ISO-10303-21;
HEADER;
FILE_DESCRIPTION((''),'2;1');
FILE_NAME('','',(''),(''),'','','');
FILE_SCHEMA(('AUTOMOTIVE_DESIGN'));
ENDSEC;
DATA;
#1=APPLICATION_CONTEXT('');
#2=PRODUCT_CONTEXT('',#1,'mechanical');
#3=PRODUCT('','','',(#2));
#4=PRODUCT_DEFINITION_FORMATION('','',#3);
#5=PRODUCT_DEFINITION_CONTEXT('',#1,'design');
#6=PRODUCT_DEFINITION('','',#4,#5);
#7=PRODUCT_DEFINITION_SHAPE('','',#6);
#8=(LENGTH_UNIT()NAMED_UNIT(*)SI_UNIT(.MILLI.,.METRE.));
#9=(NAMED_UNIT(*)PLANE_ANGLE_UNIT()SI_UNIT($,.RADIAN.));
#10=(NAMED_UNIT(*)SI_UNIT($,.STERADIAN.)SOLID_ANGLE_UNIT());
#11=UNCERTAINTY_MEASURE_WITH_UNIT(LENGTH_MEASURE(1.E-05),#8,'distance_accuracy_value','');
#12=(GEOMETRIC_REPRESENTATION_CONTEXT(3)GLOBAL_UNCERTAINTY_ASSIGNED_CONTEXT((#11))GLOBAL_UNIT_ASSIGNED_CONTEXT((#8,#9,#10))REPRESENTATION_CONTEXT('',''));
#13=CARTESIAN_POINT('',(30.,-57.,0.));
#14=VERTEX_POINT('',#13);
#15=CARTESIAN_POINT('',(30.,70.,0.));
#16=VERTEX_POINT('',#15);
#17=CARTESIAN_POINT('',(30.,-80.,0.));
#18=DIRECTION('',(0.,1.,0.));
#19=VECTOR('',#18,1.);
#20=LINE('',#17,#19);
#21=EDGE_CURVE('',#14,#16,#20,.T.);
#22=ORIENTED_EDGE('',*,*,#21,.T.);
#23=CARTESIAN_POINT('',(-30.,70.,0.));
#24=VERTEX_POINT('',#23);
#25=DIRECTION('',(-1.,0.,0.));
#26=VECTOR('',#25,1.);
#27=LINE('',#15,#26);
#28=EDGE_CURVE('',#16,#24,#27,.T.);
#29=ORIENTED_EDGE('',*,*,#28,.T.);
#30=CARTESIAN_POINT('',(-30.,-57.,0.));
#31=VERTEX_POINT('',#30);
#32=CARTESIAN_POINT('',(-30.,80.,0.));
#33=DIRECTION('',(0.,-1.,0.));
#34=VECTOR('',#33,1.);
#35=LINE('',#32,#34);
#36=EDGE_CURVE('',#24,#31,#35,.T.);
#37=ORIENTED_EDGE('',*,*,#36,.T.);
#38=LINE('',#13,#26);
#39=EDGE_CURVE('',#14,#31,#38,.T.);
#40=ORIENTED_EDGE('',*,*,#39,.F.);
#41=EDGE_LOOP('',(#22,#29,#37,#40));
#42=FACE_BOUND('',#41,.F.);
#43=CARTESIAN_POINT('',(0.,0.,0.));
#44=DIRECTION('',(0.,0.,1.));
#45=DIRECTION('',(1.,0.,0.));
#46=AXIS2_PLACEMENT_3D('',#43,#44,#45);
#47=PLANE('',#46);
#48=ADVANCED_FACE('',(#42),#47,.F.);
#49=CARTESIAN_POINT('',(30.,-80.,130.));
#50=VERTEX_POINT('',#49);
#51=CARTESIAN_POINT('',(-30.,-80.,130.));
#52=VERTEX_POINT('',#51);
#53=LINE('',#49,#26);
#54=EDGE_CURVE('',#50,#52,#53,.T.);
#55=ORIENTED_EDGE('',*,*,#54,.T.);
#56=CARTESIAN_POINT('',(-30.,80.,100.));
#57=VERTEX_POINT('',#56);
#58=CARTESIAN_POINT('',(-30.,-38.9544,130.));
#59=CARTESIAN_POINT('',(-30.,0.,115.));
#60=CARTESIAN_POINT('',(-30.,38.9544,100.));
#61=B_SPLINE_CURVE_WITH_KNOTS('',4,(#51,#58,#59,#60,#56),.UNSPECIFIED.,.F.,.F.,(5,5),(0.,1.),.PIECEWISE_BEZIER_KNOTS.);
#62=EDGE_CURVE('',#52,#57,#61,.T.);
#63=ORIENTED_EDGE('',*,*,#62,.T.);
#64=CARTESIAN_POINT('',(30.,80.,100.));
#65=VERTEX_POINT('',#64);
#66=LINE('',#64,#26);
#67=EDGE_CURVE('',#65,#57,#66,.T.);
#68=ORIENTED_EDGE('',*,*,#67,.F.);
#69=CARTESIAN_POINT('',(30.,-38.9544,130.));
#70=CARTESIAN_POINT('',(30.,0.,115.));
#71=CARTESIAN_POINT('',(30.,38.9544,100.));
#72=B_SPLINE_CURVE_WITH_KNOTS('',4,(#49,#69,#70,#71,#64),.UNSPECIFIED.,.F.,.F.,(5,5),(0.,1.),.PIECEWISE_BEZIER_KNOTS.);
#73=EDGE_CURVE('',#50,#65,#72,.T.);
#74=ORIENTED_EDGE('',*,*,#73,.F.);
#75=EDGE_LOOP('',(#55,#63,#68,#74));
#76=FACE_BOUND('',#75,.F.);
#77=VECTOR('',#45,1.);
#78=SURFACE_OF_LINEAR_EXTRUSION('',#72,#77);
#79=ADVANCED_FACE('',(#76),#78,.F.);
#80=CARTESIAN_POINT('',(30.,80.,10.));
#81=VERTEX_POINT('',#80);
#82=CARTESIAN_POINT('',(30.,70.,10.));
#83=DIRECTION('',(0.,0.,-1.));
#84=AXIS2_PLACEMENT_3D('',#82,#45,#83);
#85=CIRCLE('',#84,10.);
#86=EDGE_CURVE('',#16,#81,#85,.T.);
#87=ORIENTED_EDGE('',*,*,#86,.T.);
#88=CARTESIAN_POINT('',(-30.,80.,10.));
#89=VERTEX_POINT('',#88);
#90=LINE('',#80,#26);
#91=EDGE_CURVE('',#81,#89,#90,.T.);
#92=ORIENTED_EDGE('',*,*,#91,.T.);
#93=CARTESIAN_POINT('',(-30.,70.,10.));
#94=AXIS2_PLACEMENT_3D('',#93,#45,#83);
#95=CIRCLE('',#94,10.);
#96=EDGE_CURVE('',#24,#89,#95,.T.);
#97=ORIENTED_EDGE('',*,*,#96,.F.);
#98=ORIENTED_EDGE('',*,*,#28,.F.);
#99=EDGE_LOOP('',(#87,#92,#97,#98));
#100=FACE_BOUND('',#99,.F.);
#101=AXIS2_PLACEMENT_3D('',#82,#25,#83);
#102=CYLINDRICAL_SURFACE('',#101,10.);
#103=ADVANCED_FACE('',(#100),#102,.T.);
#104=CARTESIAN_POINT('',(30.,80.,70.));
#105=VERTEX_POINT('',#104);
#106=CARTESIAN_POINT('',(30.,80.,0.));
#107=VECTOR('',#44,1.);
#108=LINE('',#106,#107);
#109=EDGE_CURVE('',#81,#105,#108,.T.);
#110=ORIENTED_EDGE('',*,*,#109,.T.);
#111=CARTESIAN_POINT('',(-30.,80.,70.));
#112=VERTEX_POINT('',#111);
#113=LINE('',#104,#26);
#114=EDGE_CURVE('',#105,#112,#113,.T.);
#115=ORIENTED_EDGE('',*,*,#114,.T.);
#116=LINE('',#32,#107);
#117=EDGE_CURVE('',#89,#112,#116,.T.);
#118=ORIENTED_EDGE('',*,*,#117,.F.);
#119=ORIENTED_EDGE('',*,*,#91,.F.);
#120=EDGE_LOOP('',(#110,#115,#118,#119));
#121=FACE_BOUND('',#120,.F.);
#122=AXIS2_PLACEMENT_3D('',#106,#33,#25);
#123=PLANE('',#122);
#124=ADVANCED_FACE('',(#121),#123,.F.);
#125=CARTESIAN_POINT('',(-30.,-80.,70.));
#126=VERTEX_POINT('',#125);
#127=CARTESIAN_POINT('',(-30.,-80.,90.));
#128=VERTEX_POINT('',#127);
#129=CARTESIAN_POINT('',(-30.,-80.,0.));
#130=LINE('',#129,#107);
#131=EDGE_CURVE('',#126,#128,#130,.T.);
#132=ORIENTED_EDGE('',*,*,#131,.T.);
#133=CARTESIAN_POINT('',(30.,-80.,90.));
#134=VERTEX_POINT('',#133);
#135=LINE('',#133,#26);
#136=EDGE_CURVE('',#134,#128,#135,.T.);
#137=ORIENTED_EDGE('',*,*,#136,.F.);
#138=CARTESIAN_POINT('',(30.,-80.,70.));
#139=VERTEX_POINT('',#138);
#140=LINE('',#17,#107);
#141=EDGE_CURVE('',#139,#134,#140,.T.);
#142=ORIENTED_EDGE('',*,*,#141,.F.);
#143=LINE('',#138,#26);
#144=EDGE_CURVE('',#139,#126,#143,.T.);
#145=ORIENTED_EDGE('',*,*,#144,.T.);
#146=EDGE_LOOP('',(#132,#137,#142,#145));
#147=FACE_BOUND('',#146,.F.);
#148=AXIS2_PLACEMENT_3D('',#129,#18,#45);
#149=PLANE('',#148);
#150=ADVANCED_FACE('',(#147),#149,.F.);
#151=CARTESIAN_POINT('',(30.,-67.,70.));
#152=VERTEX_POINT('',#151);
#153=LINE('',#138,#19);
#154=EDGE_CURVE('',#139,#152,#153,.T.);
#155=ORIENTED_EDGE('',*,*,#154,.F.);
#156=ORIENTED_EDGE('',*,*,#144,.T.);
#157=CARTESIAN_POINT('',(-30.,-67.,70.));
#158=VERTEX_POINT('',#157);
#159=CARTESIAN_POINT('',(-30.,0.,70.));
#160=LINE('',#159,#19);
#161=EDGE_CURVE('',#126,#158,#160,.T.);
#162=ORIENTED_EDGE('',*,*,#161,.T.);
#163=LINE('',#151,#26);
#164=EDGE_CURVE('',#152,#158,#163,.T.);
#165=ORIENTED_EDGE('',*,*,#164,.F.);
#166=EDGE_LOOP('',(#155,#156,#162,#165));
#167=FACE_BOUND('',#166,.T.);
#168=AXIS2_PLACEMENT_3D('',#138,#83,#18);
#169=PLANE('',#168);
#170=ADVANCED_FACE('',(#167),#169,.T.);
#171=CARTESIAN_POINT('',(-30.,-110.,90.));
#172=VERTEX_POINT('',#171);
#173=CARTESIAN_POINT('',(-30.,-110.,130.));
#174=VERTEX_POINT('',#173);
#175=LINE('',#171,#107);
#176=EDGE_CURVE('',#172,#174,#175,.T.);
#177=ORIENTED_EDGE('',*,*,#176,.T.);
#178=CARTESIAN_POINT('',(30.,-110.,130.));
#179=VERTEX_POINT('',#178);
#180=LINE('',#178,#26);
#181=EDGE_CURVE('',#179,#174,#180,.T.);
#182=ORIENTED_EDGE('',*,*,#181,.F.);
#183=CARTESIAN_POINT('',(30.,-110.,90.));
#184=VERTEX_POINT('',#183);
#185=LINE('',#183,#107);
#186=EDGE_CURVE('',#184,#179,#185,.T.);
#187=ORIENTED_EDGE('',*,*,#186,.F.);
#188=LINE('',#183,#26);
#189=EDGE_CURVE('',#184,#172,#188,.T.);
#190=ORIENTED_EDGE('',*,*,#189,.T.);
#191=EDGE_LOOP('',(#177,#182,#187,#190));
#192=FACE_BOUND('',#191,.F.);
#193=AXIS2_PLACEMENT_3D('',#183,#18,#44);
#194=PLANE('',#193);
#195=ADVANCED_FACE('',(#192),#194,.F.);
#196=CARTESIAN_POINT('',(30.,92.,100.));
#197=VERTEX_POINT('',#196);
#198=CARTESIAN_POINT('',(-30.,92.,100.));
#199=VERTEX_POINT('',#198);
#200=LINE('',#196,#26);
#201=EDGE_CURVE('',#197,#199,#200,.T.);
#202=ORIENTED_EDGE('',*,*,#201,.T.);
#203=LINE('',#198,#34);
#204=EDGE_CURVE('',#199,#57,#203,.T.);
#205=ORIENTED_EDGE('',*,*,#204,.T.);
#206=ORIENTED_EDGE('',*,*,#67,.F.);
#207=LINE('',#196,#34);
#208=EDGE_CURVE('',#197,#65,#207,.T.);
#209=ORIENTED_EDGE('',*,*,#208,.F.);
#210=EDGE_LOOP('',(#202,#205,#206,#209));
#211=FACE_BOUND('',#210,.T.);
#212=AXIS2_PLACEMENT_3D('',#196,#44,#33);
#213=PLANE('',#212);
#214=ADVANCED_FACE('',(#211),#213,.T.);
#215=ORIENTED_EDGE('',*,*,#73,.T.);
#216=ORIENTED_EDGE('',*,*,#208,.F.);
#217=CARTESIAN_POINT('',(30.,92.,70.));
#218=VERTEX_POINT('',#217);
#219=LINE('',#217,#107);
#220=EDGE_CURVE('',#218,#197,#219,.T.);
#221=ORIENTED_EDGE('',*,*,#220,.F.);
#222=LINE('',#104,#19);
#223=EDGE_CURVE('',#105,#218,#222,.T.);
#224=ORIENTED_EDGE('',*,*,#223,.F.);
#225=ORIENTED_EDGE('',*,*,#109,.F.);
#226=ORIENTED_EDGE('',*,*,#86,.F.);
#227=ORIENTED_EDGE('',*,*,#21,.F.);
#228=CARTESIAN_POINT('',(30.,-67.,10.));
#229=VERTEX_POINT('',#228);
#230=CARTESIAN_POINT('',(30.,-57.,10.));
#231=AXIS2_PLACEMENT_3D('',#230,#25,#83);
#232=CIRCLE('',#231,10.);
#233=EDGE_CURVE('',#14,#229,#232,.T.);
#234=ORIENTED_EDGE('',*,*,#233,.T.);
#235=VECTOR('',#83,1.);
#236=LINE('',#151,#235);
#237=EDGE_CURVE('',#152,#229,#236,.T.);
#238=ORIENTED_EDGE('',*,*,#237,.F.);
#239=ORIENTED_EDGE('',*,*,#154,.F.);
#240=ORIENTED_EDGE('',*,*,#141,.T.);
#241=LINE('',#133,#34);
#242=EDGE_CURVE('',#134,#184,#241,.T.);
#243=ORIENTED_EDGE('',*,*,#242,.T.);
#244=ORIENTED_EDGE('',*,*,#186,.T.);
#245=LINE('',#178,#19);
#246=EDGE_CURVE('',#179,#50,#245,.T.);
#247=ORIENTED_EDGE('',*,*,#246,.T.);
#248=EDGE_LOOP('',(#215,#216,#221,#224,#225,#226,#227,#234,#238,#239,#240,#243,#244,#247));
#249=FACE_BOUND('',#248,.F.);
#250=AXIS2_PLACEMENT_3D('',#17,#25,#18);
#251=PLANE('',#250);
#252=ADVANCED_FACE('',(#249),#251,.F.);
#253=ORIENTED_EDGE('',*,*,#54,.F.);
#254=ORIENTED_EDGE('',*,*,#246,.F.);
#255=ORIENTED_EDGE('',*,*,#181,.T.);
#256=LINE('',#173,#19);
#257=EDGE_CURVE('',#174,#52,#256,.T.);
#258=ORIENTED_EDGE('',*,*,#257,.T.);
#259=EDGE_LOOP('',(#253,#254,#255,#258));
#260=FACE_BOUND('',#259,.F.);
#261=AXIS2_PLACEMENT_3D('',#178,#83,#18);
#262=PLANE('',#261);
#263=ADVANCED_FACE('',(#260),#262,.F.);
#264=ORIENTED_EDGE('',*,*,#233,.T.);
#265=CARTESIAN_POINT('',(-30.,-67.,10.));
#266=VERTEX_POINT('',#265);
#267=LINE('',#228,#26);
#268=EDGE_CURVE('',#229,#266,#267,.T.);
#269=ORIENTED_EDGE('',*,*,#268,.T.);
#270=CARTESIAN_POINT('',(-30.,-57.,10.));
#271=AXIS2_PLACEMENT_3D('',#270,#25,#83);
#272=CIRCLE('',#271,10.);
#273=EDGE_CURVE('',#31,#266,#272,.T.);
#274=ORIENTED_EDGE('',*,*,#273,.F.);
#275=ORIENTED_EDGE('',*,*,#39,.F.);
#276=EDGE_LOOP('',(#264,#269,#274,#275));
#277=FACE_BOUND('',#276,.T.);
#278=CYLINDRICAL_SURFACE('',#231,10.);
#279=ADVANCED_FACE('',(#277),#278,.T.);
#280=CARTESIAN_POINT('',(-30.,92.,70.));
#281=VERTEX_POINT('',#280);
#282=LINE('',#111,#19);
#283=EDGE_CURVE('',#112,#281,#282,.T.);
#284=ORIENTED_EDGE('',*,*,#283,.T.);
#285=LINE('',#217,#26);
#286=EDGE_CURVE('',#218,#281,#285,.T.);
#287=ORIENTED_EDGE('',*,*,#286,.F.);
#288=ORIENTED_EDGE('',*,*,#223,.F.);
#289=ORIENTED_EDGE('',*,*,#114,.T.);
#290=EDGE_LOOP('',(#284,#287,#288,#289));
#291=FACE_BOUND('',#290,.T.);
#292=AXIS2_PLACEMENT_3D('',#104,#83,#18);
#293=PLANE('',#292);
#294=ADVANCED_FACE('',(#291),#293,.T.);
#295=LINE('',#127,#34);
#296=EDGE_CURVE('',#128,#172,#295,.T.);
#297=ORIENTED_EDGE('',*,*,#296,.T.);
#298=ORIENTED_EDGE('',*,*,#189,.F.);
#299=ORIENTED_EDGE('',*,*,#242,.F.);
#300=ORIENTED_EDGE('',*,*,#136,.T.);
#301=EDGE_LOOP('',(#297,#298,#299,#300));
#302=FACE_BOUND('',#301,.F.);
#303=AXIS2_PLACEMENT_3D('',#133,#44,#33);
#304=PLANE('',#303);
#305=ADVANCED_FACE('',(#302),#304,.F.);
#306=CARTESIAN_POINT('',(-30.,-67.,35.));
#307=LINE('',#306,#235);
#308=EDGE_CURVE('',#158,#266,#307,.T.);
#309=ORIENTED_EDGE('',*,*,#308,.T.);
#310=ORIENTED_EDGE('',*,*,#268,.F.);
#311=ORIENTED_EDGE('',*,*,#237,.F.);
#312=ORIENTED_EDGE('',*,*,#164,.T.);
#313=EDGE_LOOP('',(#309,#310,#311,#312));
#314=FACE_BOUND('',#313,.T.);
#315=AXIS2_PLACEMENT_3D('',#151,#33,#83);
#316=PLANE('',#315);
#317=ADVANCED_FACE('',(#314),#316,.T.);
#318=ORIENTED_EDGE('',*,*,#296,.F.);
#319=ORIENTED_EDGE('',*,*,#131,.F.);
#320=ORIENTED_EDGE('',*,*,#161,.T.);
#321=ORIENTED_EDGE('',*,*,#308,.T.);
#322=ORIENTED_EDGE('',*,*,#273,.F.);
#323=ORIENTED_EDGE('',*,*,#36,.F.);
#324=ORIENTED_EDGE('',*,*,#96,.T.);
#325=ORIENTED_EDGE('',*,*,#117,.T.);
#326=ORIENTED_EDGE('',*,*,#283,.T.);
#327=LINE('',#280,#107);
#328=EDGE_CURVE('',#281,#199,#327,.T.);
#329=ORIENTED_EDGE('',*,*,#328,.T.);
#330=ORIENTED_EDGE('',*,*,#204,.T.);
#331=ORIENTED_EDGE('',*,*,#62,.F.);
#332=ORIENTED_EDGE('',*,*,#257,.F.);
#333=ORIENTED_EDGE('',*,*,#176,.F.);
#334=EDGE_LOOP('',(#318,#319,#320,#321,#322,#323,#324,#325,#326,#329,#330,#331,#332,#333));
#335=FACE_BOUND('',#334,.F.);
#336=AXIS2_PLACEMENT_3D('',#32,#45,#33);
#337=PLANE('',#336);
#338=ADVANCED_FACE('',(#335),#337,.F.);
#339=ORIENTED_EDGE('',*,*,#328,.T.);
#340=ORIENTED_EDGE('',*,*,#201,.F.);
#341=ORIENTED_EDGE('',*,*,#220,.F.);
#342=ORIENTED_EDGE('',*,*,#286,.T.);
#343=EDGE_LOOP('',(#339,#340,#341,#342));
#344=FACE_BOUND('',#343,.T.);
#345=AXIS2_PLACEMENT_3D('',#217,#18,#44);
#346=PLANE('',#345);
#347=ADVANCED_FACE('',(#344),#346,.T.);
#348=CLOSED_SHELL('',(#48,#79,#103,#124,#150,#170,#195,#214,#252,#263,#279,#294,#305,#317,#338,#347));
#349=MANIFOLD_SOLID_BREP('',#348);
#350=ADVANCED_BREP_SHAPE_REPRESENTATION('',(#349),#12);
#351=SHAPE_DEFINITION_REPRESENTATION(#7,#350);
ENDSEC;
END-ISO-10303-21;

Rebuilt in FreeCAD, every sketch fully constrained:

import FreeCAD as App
import Part
import Sketcher
from FreeCAD import Vector
Q = App.Units.Quantity


def edges_at(feature, points):
    """Names of the edges that pass closest to the given points."""
    edges = feature.Shape.Edges
    near = lambda p: min(range(len(edges)), key=lambda i: edges[i].distToShape(Part.Vertex(*p))[0])
    return sorted({f"Edge{near(p) + 1}" for p in points})

doc = App.newDocument("Part")
body = doc.addObject("PartDesign::Body", "Body")

sketch1 = doc.addObject("Sketcher::SketchObject", "Sketch")
body.addObject(sketch1)
sketch1.AttachmentSupport = (doc.XY_Plane, [""])
sketch1.MapMode = "FlatFace"
sketch1.addGeometry(Part.LineSegment(Vector(-30, 80, 0), Vector(-30, -80, 0)), False)
sketch1.addGeometry(Part.LineSegment(Vector(-30, -80, 0), Vector(30, -80, 0)), False)
sketch1.addGeometry(Part.LineSegment(Vector(30, -80, 0), Vector(30, 80, 0)), False)
sketch1.addGeometry(Part.LineSegment(Vector(30, 80, 0), Vector(-30, 80, 0)), False)
sketch1.addConstraint(Sketcher.Constraint("Coincident", 0, 2, 1, 1))
sketch1.addConstraint(Sketcher.Constraint("Coincident", 1, 2, 2, 1))
sketch1.addConstraint(Sketcher.Constraint("Coincident", 2, 2, 3, 1))
sketch1.addConstraint(Sketcher.Constraint("Coincident", 3, 2, 0, 1))
sketch1.addConstraint(Sketcher.Constraint("Vertical", 0))
sketch1.addConstraint(Sketcher.Constraint("Horizontal", 1))
sketch1.addConstraint(Sketcher.Constraint("Vertical", 2))
sketch1.addConstraint(Sketcher.Constraint("Horizontal", 3))
sketch1.addConstraint(Sketcher.Constraint("Symmetric", 0, 2, 2, 2, -1, 1))
sketch1.addConstraint(Sketcher.Constraint("DistanceX", 1, 1, 1, 2, Q("60 mm")))
sketch1.addConstraint(Sketcher.Constraint("DistanceY", 0, 2, 0, 1, Q("160 mm")))
pad1 = doc.addObject("PartDesign::Pad", "Pad")
body.addObject(pad1)
pad1.Profile = sketch1
pad1.Length = 100

sketch2 = doc.addObject("Sketcher::SketchObject", "Sketch001")
body.addObject(sketch2)
sketch2.AttachmentSupport = (doc.YZ_Plane, [""])
sketch2.MapMode = "FlatFace"
sketch2.AttachmentOffset = App.Placement(Vector(0, 0, 30), App.Rotation())
sketch2.addGeometry(Part.LineSegment(Vector(-80, 100, 0), Vector(80, 100, 0)), False)
sketch2.addGeometry(Part.BSplineCurve([Vector(-80, 130, 0), Vector(-38.9544, 130, 0), Vector(0, 115, 0), Vector(38.9544, 100, 0), Vector(80, 100, 0)], [5, 5], [0, 1], False, 4, [1, 1, 1, 1, 1], False), False)
sketch2.addGeometry(Part.LineSegment(Vector(-80, 130, 0), Vector(-80, 100, 0)), False)
sketch2.addConstraint(Sketcher.Constraint("Block", 1))
sketch2.addConstraint(Sketcher.Constraint("Coincident", 0, 2, 1, 2))
sketch2.addConstraint(Sketcher.Constraint("Coincident", 1, 1, 2, 1))
sketch2.addConstraint(Sketcher.Constraint("Coincident", 2, 2, 0, 1))
sketch2.addConstraint(Sketcher.Constraint("Horizontal", 0))
sketch2.addConstraint(Sketcher.Constraint("Vertical", 2))
pad2 = doc.addObject("PartDesign::Pad", "Pad001")
body.addObject(pad2)
pad2.Profile = sketch2
pad2.Length = 60
pad2.Reversed = True

sketch3 = doc.addObject("Sketcher::SketchObject", "Sketch002")
body.addObject(sketch3)
sketch3.AttachmentSupport = (doc.YZ_Plane, [""])
sketch3.MapMode = "FlatFace"
sketch3.AttachmentOffset = App.Placement(Vector(0, 0, 30), App.Rotation())
sketch3.addGeometry(Part.LineSegment(Vector(-80, 70, 0), Vector(-80, 0, 0)), False)
sketch3.addGeometry(Part.LineSegment(Vector(-80, 0, 0), Vector(-67, 0, 0)), False)
sketch3.addGeometry(Part.LineSegment(Vector(-67, 0, 0), Vector(-67, 70, 0)), False)
sketch3.addGeometry(Part.LineSegment(Vector(-67, 70, 0), Vector(-80, 70, 0)), False)
sketch3.addConstraint(Sketcher.Constraint("Coincident", 0, 2, 1, 1))
sketch3.addConstraint(Sketcher.Constraint("Coincident", 1, 2, 2, 1))
sketch3.addConstraint(Sketcher.Constraint("Coincident", 2, 2, 3, 1))
sketch3.addConstraint(Sketcher.Constraint("Coincident", 3, 2, 0, 1))
sketch3.addConstraint(Sketcher.Constraint("Vertical", 0))
sketch3.addConstraint(Sketcher.Constraint("Horizontal", 1))
sketch3.addConstraint(Sketcher.Constraint("Vertical", 2))
sketch3.addConstraint(Sketcher.Constraint("Horizontal", 3))
sketch3.addConstraint(Sketcher.Constraint("PointOnObject", 0, 2, -1))
sketch3.addConstraint(Sketcher.Constraint("DistanceX", 1, 1, 1, 2, Q("13 mm")))
sketch3.addConstraint(Sketcher.Constraint("DistanceY", 0, 2, 0, 1, Q("70 mm")))
sketch3.addConstraint(Sketcher.Constraint("DistanceX", 0, 2, -1, 1, Q("80 mm")))
pocket1 = doc.addObject("PartDesign::Pocket", "Pocket")
body.addObject(pocket1)
pocket1.Profile = sketch3
pocket1.Type = "ThroughAll"

sketch4 = doc.addObject("Sketcher::SketchObject", "Sketch003")
body.addObject(sketch4)
sketch4.AttachmentSupport = (doc.YZ_Plane, [""])
sketch4.MapMode = "FlatFace"
sketch4.AttachmentOffset = App.Placement(Vector(0, 0, 30), App.Rotation())
sketch4.addGeometry(Part.LineSegment(Vector(-110, 90, 0), Vector(-80, 90, 0)), False)
sketch4.addGeometry(Part.LineSegment(Vector(-80, 90, 0), Vector(-80, 130, 0)), False)
sketch4.addGeometry(Part.LineSegment(Vector(-80, 130, 0), Vector(-110, 130, 0)), False)
sketch4.addGeometry(Part.LineSegment(Vector(-110, 130, 0), Vector(-110, 90, 0)), False)
sketch4.addGeometry(Part.LineSegment(Vector(80, 100, 0), Vector(80, 70, 0)), False)
sketch4.addGeometry(Part.LineSegment(Vector(80, 70, 0), Vector(92, 70, 0)), False)
sketch4.addGeometry(Part.LineSegment(Vector(92, 70, 0), Vector(92, 100, 0)), False)
sketch4.addGeometry(Part.LineSegment(Vector(92, 100, 0), Vector(80, 100, 0)), False)
sketch4.addConstraint(Sketcher.Constraint("Coincident", 0, 2, 1, 1))
sketch4.addConstraint(Sketcher.Constraint("Coincident", 1, 2, 2, 1))
sketch4.addConstraint(Sketcher.Constraint("Coincident", 2, 2, 3, 1))
sketch4.addConstraint(Sketcher.Constraint("Coincident", 3, 2, 0, 1))
sketch4.addConstraint(Sketcher.Constraint("Coincident", 4, 2, 5, 1))
sketch4.addConstraint(Sketcher.Constraint("Coincident", 5, 2, 6, 1))
sketch4.addConstraint(Sketcher.Constraint("Coincident", 6, 2, 7, 1))
sketch4.addConstraint(Sketcher.Constraint("Coincident", 7, 2, 4, 1))
sketch4.addConstraint(Sketcher.Constraint("Horizontal", 0))
sketch4.addConstraint(Sketcher.Constraint("Vertical", 1))
sketch4.addConstraint(Sketcher.Constraint("Horizontal", 2))
sketch4.addConstraint(Sketcher.Constraint("Vertical", 3))
sketch4.addConstraint(Sketcher.Constraint("Vertical", 4))
sketch4.addConstraint(Sketcher.Constraint("Horizontal", 5))
sketch4.addConstraint(Sketcher.Constraint("Vertical", 6))
sketch4.addConstraint(Sketcher.Constraint("Horizontal", 7))
sketch4.addConstraint(Sketcher.Constraint("Equal", 2, 4))
sketch4.addConstraint(Sketcher.Constraint("DistanceX", 0, 1, 0, 2, Q("30 mm")))
sketch4.addConstraint(Sketcher.Constraint("DistanceX", 5, 1, 5, 2, Q("12 mm")))
sketch4.addConstraint(Sketcher.Constraint("DistanceY", 1, 1, 1, 2, Q("40 mm")))
sketch4.addConstraint(Sketcher.Constraint("DistanceY", 4, 2, 0, 2, Q("20 mm")))
sketch4.addConstraint(Sketcher.Constraint("DistanceX", 0, 2, -1, 1, Q("80 mm")))
sketch4.addConstraint(Sketcher.Constraint("DistanceY", -1, 1, 0, 2, Q("90 mm")))
sketch4.addConstraint(Sketcher.Constraint("DistanceX", -1, 1, 4, 2, Q("80 mm")))
pad3 = doc.addObject("PartDesign::Pad", "Pad002")
body.addObject(pad3)
pad3.Profile = sketch4
pad3.Length = 60
pad3.Reversed = True
doc.recompute()

fillet = doc.addObject("PartDesign::Fillet", "Fillet")
body.addObject(fillet)
fillet.Base = (pad3, edges_at(pad3, [(0, -67, 0), (0, 80, 0)]))
fillet.Radius = 10

doc.recompute()
